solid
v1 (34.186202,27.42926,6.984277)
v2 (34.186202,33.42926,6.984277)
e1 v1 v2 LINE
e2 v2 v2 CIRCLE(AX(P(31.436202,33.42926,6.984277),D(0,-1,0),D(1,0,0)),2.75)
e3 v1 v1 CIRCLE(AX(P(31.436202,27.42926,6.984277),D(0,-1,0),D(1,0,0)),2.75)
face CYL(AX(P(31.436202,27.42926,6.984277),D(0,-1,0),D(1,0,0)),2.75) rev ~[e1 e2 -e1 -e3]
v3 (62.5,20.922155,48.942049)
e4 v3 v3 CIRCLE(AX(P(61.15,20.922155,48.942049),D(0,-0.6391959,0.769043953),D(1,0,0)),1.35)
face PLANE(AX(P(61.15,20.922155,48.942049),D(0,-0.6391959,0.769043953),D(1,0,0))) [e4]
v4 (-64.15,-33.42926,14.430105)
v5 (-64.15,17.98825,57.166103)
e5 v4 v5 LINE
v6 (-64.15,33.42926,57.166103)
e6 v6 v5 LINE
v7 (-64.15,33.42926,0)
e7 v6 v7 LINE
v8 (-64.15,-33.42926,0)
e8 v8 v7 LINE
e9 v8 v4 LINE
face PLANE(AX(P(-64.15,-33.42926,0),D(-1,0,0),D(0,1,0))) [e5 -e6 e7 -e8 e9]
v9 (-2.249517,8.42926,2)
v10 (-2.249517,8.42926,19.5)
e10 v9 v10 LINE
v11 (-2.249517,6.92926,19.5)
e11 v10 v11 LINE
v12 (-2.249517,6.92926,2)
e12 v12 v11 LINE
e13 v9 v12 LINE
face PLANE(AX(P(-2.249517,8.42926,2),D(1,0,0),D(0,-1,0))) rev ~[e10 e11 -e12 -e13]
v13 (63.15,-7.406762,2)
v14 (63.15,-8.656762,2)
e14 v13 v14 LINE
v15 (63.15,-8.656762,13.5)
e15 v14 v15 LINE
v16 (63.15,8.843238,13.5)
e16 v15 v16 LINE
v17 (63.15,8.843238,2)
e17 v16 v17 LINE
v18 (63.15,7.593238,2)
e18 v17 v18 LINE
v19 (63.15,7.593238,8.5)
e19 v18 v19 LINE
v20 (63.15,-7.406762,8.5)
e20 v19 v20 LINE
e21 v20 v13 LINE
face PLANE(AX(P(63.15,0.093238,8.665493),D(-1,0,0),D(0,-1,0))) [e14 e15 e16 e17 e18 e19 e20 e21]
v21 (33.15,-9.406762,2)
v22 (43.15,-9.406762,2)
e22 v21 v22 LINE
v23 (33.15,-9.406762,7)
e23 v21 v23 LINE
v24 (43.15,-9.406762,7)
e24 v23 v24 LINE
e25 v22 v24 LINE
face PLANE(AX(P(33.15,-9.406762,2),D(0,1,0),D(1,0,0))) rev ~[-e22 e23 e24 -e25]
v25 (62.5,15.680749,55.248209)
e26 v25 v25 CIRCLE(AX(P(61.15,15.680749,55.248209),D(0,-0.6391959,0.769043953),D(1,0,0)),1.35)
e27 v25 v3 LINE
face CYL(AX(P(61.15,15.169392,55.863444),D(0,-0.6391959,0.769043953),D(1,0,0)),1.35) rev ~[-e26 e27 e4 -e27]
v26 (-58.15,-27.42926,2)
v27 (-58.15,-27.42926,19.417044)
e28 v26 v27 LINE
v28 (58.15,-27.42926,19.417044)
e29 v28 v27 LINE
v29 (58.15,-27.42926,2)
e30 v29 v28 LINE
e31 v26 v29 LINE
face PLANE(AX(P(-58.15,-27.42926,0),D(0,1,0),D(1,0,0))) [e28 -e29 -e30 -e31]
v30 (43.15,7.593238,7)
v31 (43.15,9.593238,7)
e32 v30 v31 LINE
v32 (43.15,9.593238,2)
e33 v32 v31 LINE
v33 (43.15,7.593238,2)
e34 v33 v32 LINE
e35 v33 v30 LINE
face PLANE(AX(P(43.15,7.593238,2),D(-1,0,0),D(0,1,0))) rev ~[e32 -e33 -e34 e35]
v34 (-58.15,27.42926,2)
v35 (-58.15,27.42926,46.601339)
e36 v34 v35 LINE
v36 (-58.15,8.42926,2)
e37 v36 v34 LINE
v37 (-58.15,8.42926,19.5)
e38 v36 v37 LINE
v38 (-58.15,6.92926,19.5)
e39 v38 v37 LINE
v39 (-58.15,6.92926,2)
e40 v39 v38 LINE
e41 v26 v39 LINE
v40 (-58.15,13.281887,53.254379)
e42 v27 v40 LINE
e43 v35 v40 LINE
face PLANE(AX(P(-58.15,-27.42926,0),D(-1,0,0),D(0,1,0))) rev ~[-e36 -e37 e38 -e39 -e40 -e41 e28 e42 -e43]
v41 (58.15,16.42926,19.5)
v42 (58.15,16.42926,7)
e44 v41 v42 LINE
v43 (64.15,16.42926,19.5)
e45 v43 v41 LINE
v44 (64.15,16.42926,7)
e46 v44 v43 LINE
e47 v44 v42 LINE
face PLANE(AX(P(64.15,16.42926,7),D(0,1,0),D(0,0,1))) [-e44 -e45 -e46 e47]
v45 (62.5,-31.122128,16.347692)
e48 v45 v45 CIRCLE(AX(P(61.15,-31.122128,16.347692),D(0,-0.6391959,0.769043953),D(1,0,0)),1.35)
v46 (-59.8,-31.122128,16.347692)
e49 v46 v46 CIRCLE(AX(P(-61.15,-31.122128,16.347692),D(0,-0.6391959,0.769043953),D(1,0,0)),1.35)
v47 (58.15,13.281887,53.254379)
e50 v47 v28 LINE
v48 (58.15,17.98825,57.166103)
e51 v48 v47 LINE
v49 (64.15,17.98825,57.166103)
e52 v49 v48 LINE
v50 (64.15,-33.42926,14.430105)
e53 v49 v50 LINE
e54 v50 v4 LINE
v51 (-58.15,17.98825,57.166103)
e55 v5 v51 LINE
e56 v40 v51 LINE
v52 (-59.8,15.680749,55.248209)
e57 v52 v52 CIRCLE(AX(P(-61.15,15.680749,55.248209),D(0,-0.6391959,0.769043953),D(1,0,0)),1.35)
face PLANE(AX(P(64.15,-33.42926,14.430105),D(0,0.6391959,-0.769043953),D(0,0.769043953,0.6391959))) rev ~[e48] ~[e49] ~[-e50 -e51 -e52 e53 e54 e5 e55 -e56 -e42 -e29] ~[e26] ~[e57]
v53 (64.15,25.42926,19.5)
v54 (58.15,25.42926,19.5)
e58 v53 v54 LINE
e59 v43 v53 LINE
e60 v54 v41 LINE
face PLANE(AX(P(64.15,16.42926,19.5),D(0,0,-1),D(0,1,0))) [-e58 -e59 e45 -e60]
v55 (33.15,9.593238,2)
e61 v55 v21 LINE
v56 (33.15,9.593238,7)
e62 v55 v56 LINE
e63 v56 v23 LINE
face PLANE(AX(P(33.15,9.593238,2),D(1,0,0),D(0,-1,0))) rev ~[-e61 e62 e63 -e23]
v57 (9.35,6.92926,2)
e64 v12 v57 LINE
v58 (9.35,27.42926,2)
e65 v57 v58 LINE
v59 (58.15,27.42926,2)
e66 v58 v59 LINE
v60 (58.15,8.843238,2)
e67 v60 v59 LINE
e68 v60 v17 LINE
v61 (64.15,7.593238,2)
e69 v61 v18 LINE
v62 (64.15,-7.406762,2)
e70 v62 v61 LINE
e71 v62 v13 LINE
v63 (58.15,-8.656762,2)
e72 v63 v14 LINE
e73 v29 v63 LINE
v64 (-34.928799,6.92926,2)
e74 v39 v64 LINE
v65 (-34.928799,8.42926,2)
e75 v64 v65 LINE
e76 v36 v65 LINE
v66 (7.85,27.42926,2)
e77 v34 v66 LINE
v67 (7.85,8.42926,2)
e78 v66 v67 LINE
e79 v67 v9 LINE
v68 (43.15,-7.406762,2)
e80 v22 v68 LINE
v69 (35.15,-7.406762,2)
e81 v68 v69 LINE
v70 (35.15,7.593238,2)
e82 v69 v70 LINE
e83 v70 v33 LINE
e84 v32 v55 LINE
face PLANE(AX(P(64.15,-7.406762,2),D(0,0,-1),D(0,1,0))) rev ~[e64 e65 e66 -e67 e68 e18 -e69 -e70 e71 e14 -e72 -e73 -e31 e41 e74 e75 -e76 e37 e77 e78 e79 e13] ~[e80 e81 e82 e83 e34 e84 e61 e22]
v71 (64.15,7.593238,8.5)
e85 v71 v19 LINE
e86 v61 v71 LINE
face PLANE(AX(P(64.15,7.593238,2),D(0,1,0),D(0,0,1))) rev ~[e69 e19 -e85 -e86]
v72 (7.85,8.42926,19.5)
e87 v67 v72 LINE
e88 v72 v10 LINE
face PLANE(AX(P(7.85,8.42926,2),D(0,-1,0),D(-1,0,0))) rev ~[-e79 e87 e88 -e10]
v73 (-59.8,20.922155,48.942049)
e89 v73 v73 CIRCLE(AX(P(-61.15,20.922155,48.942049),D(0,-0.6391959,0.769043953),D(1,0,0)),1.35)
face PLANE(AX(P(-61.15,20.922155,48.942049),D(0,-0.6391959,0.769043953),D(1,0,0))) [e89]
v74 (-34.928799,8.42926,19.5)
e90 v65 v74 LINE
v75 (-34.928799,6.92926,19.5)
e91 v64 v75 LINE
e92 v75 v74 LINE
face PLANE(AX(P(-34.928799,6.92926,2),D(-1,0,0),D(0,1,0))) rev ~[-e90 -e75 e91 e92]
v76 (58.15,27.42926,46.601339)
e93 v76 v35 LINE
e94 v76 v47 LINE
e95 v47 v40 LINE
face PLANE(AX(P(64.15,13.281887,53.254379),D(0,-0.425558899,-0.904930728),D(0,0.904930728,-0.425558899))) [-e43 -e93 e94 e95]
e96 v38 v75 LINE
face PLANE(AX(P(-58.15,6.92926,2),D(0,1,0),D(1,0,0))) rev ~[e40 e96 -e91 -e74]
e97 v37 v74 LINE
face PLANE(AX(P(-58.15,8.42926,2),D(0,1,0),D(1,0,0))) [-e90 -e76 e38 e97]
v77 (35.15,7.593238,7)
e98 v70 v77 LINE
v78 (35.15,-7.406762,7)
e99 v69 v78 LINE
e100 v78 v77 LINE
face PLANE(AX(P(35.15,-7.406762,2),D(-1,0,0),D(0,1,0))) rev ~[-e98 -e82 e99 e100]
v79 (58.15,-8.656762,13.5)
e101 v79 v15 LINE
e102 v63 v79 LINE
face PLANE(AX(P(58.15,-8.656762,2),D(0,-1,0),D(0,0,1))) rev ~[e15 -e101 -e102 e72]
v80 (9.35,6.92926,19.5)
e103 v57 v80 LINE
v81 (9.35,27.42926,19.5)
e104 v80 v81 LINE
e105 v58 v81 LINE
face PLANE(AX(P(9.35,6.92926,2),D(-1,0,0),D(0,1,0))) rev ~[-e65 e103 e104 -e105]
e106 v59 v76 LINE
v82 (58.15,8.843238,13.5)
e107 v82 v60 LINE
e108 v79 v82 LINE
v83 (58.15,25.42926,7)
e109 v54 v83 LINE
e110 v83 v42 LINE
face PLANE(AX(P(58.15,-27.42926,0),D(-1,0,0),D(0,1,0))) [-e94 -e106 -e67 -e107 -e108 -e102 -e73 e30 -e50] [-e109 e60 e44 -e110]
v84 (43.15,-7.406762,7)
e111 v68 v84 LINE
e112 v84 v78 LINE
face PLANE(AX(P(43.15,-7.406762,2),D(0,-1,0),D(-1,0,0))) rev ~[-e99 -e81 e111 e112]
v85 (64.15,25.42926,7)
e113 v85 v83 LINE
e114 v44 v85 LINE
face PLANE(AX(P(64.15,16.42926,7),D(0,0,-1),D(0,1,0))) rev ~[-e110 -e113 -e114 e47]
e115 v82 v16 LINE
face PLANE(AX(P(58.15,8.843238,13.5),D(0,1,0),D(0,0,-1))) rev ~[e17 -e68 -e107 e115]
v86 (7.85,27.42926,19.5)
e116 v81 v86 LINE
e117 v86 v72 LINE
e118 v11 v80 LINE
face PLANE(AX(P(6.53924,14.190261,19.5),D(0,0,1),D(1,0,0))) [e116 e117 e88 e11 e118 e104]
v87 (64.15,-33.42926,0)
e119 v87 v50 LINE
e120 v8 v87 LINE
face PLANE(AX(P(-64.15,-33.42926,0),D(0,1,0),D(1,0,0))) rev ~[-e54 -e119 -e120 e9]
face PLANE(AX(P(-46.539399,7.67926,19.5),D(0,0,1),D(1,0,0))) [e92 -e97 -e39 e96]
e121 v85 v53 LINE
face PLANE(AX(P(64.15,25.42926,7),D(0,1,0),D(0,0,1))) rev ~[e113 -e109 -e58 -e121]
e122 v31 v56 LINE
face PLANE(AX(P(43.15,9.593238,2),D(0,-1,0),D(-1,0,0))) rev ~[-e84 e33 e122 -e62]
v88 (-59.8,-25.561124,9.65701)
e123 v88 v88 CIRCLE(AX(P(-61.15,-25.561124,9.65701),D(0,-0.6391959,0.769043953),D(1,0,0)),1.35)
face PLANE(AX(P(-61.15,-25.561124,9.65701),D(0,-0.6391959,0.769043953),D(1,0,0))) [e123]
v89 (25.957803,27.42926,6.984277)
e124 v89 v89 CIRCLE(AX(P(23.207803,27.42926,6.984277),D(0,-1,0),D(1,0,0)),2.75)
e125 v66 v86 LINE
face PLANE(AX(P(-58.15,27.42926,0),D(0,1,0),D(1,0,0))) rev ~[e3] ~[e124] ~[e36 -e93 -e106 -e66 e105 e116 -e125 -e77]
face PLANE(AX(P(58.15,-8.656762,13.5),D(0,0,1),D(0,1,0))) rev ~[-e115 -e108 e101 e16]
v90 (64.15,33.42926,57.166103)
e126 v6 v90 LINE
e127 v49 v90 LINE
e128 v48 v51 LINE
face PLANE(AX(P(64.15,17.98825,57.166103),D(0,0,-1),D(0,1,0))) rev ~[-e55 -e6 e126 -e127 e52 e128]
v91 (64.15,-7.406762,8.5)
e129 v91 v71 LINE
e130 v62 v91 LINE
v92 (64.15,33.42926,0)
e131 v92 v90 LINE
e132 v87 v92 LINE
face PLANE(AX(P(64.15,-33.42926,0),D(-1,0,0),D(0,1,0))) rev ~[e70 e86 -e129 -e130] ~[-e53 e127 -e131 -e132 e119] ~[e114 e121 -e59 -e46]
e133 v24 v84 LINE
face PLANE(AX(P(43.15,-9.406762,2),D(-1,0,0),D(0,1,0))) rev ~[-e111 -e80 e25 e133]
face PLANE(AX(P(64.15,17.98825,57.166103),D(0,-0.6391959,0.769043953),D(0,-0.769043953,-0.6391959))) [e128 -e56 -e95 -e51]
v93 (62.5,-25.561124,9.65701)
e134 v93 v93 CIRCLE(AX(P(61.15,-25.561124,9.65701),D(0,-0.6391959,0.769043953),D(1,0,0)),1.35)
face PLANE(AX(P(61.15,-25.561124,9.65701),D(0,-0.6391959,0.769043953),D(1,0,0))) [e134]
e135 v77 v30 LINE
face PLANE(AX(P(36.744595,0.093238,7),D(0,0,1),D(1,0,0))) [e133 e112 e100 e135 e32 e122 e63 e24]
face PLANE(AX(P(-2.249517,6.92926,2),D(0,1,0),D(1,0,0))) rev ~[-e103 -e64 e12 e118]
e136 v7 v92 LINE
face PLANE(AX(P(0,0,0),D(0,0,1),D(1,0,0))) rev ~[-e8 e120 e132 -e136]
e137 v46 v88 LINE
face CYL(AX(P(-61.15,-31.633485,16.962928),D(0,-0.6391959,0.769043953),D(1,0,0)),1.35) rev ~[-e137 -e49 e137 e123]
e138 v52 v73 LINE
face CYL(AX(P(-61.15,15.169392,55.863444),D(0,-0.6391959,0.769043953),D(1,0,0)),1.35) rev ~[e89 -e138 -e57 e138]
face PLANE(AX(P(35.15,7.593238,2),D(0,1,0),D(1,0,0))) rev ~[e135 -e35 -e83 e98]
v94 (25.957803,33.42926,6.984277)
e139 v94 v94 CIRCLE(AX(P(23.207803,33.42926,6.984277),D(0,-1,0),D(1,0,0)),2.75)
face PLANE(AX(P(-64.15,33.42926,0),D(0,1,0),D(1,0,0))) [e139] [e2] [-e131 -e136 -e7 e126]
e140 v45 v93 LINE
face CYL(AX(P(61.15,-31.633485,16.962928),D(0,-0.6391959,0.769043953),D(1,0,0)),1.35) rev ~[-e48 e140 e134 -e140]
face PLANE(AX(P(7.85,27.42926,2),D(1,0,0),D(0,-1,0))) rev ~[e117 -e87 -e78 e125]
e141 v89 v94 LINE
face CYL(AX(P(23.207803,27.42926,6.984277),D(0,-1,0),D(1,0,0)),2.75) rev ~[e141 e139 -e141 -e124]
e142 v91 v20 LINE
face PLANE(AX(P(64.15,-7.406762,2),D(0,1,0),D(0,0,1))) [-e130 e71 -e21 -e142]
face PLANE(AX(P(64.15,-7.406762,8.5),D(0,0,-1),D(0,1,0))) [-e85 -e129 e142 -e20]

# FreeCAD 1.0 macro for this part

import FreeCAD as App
import Part
import Sketcher
Q = App.Units.Quantity

doc = App.newDocument("Part")
body = doc.addObject("PartDesign::Body", "Body")

# Sketch on XY plane
sketch1 = doc.addObject("Sketcher::SketchObject", "Sketch")
body.addObject(sketch1)
sketch1.AttachmentSupport = (doc.XY_Plane, [""])
sketch1.MapMode = "FlatFace"
sketch1.addGeometry(Part.LineSegment(App.Vector(-64, 33, 0), App.Vector(-64, -33, 0)), False)
sketch1.addGeometry(Part.LineSegment(App.Vector(-64, -33, 0), App.Vector(64, -33, 0)), False)
sketch1.addGeometry(Part.LineSegment(App.Vector(64, -33, 0), App.Vector(64, 33, 0)), False)
sketch1.addGeometry(Part.LineSegment(App.Vector(64, 33, 0), App.Vector(-64, 33, 0)), False)
sketch1.addGeometry(Part.LineSegment(App.Vector(58, -27, 0), App.Vector(-58, -27, 0)), False)
sketch1.addGeometry(Part.LineSegment(App.Vector(-58, -27, 0), App.Vector(-58, 27, 0)), False)
sketch1.addGeometry(Part.LineSegment(App.Vector(-58, 27, 0), App.Vector(58, 27, 0)), False)
sketch1.addGeometry(Part.LineSegment(App.Vector(58, 27, 0), App.Vector(58, -27, 0)), False)
sketch1.addConstraint(Sketcher.Constraint("Coincident", 0, 2, 1, 1))
sketch1.addConstraint(Sketcher.Constraint("Coincident", 1, 2, 2, 1))
sketch1.addConstraint(Sketcher.Constraint("Coincident", 2, 2, 3, 1))
sketch1.addConstraint(Sketcher.Constraint("Coincident", 3, 2, 0, 1))
sketch1.addConstraint(Sketcher.Constraint("Coincident", 4, 2, 5, 1))
sketch1.addConstraint(Sketcher.Constraint("Coincident", 5, 2, 6, 1))
sketch1.addConstraint(Sketcher.Constraint("Coincident", 6, 2, 7, 1))
sketch1.addConstraint(Sketcher.Constraint("Coincident", 7, 2, 4, 1))
sketch1.addConstraint(Sketcher.Constraint("Vertical", 0))
sketch1.addConstraint(Sketcher.Constraint("Horizontal", 1))
sketch1.addConstraint(Sketcher.Constraint("Vertical", 2))
sketch1.addConstraint(Sketcher.Constraint("Horizontal", 3))
sketch1.addConstraint(Sketcher.Constraint("Horizontal", 4))
sketch1.addConstraint(Sketcher.Constraint("Vertical", 5))
sketch1.addConstraint(Sketcher.Constraint("Horizontal", 6))
sketch1.addConstraint(Sketcher.Constraint("Vertical", 7))
sketch1.addConstraint(Sketcher.Constraint("Symmetric", 0, 2, 2, 2, -1, 1))
sketch1.addConstraint(Sketcher.Constraint("Symmetric", 4, 2, 6, 2, -1, 1))
sketch1.addConstraint(Sketcher.Constraint("DistanceX", 1, 1, 1, 2, Q("128.3 mm")))
sketch1.addConstraint(Sketcher.Constraint("DistanceX", 4, 2, 4, 1, Q("116.3 mm")))
sketch1.addConstraint(Sketcher.Constraint("DistanceY", 0, 2, 4, 2, Q("6 mm")))
sketch1.addConstraint(Sketcher.Constraint("DistanceY", 0, 2, 0, 1, Q("66.85852 mm")))
pad1 = doc.addObject("PartDesign::Pad", "Pad")
body.addObject(pad1)
pad1.Profile = sketch1
pad1.Length = 70

# Sketch on XY plane
sketch2 = doc.addObject("Sketcher::SketchObject", "Sketch001")
body.addObject(sketch2)
sketch2.AttachmentSupport = (doc.XY_Plane, [""])
sketch2.MapMode = "FlatFace"
sketch2.addGeometry(Part.LineSegment(App.Vector(-58, 27, 0), App.Vector(-58, -27, 0)), False)
sketch2.addGeometry(Part.LineSegment(App.Vector(-58, -27, 0), App.Vector(58, -27, 0)), False)
sketch2.addGeometry(Part.LineSegment(App.Vector(58, -27, 0), App.Vector(58, 27, 0)), False)
sketch2.addGeometry(Part.LineSegment(App.Vector(58, 27, 0), App.Vector(-58, 27, 0)), False)
sketch2.addConstraint(Sketcher.Constraint("Coincident", 0, 2, 1, 1))
sketch2.addConstraint(Sketcher.Constraint("Coincident", 1, 2, 2, 1))
sketch2.addConstraint(Sketcher.Constraint("Coincident", 2, 2, 3, 1))
sketch2.addConstraint(Sketcher.Constraint("Coincident", 3, 2, 0, 1))
sketch2.addConstraint(Sketcher.Constraint("Vertical", 0))
sketch2.addConstraint(Sketcher.Constraint("Horizontal", 1))
sketch2.addConstraint(Sketcher.Constraint("Vertical", 2))
sketch2.addConstraint(Sketcher.Constraint("Horizontal", 3))
sketch2.addConstraint(Sketcher.Constraint("Symmetric", 0, 2, 2, 2, -1, 1))
sketch2.addConstraint(Sketcher.Constraint("DistanceX", 1, 1, 1, 2, Q("116.3 mm")))
sketch2.addConstraint(Sketcher.Constraint("DistanceY", 0, 2, 0, 1, Q("54.85852 mm")))
pad2 = doc.addObject("PartDesign::Pad", "Pad001")
body.addObject(pad2)
pad2.Profile = sketch2
pad2.Length = 2

# Sketch on YZ plane
sketch3 = doc.addObject("Sketcher::SketchObject", "Sketch002")
body.addObject(sketch3)
sketch3.AttachmentSupport = (doc.YZ_Plane, [""])
sketch3.MapMode = "FlatFace"
sketch3.AttachmentOffset = App.Placement(App.Vector(0, 0, 64.15), App.Rotation())
sketch3.addGeometry(Part.LineSegment(App.Vector(-33, 14, 0), App.Vector(33, 70, 0)), False)
sketch3.addGeometry(Part.LineSegment(App.Vector(33, 70, 0), App.Vector(-33, 70, 0)), False)
sketch3.addGeometry(Part.LineSegment(App.Vector(-33, 70, 0), App.Vector(-33, 14, 0)), False)
sketch3.addConstraint(Sketcher.Constraint("Coincident", 0, 2, 1, 1))
sketch3.addConstraint(Sketcher.Constraint("Coincident", 1, 2, 2, 1))
sketch3.addConstraint(Sketcher.Constraint("Coincident", 2, 2, 0, 1))
sketch3.addConstraint(Sketcher.Constraint("Horizontal", 1))
sketch3.addConstraint(Sketcher.Constraint("Vertical", 2))
sketch3.addConstraint(Sketcher.Constraint("DistanceY", -1, 1, 0, 2, Q("70 mm")))
sketch3.addConstraint(Sketcher.Constraint("DistanceX", 1, 2, 1, 1, Q("66.85852 mm")))
sketch3.addConstraint(Sketcher.Constraint("Distance", 0, Q("86.93719 mm")))
sketch3.addConstraint(Sketcher.Constraint("DistanceX", -1, 1, 0, 2, Q("33.42926 mm")))
pocket1 = doc.addObject("PartDesign::Pocket", "Pocket")
body.addObject(pocket1)
pocket1.Profile = sketch3
pocket1.Length = 130

# Sketch on YZ plane
sketch4 = doc.addObject("Sketcher::SketchObject", "Sketch003")
body.addObject(sketch4)
sketch4.AttachmentSupport = (doc.YZ_Plane, [""])
sketch4.MapMode = "FlatFace"
sketch4.AttachmentOffset = App.Placement(App.Vector(0, 0, 64.15), App.Rotation())
sketch4.addGeometry(Part.LineSegment(App.Vector(16, 20, 0), App.Vector(16, 7, 0)), False)
sketch4.addGeometry(Part.LineSegment(App.Vector(16, 7, 0), App.Vector(25, 7, 0)), False)
sketch4.addGeometry(Part.LineSegment(App.Vector(25, 7, 0), App.Vector(25, 20, 0)), False)
sketch4.addGeometry(Part.LineSegment(App.Vector(25, 20, 0), App.Vector(16, 20, 0)), False)
sketch4.addConstraint(Sketcher.Constraint("Coincident", 0, 2, 1, 1))
sketch4.addConstraint(Sketcher.Constraint("Coincident", 1, 2, 2, 1))
sketch4.addConstraint(Sketcher.Constraint("Coincident", 2, 2, 3, 1))
sketch4.addConstraint(Sketcher.Constraint("Coincident", 3, 2, 0, 1))
sketch4.addConstraint(Sketcher.Constraint("Vertical", 0))
sketch4.addConstraint(Sketcher.Constraint("Horizontal", 1))
sketch4.addConstraint(Sketcher.Constraint("Vertical", 2))
sketch4.addConstraint(Sketcher.Constraint("Horizontal", 3))
sketch4.addConstraint(Sketcher.Constraint("DistanceX", 1, 1, 1, 2, Q("9 mm")))
sketch4.addConstraint(Sketcher.Constraint("DistanceY", 0, 2, 0, 1, Q("12.5 mm")))
sketch4.addConstraint(Sketcher.Constraint("DistanceY", -1, 1, 0, 2, Q("7 mm")))
sketch4.addConstraint(Sketcher.Constraint("DistanceX", -1, 1, 0, 2, Q("16.42926 mm")))
pocket2 = doc.addObject("PartDesign::Pocket", "Pocket001")
body.addObject(pocket2)
pocket2.Profile = sketch4
pocket2.Length = 7

# Sketch on YZ plane
sketch5 = doc.addObject("Sketcher::SketchObject", "Sketch004")
body.addObject(sketch5)
sketch5.AttachmentSupport = (doc.YZ_Plane, [""])
sketch5.MapMode = "FlatFace"
sketch5.AttachmentOffset = App.Placement(App.Vector(0, 0, 64.15), App.Rotation())
sketch5.addGeometry(Part.LineSegment(App.Vector(-7, 8, 0), App.Vector(-7, 2, 0)), False)
sketch5.addGeometry(Part.LineSegment(App.Vector(-7, 2, 0), App.Vector(8, 2, 0)), False)
sketch5.addGeometry(Part.LineSegment(App.Vector(8, 2, 0), App.Vector(8, 8, 0)), False)
sketch5.addGeometry(Part.LineSegment(App.Vector(8, 8, 0), App.Vector(-7, 8, 0)), False)
sketch5.addConstraint(Sketcher.Constraint("Coincident", 0, 2, 1, 1))
sketch5.addConstraint(Sketcher.Constraint("Coincident", 1, 2, 2, 1))
sketch5.addConstraint(Sketcher.Constraint("Coincident", 2, 2, 3, 1))
sketch5.addConstraint(Sketcher.Constraint("Coincident", 3, 2, 0, 1))
sketch5.addConstraint(Sketcher.Constraint("Vertical", 0))
sketch5.addConstraint(Sketcher.Constraint("Horizontal", 1))
sketch5.addConstraint(Sketcher.Constraint("Vertical", 2))
sketch5.addConstraint(Sketcher.Constraint("Horizontal", 3))
sketch5.addConstraint(Sketcher.Constraint("DistanceX", 1, 1, 1, 2, Q("15 mm")))
sketch5.addConstraint(Sketcher.Constraint("DistanceY", 0, 2, 0, 1, Q("6.5 mm")))
sketch5.addConstraint(Sketcher.Constraint("DistanceY", -1, 1, 0, 2, Q("2 mm")))
sketch5.addConstraint(Sketcher.Constraint("DistanceX", 0, 2, -1, 1, Q("7.406762 mm")))
pocket3 = doc.addObject("PartDesign::Pocket", "Pocket002")
body.addObject(pocket3)
pocket3.Profile = sketch5
pocket3.Length = 7

# Sketch on YZ plane
sketch6 = doc.addObject("Sketcher::SketchObject", "Sketch005")
body.addObject(sketch6)
sketch6.AttachmentSupport = (doc.YZ_Plane, [""])
sketch6.MapMode = "FlatFace"
sketch6.AttachmentOffset = App.Placement(App.Vector(0, 0, 58.15), App.Rotation())
sketch6.addGeometry(Part.LineSegment(App.Vector(8.8, 13.5, 0), App.Vector(8.8, 2, 0)), False)
sketch6.addGeometry(Part.LineSegment(App.Vector(8.8, 2, 0), App.Vector(7.6, 2, 0)), False)
sketch6.addGeometry(Part.LineSegment(App.Vector(7.6, 2, 0), App.Vector(7.6, 8.5, 0)), False)
sketch6.addGeometry(Part.LineSegment(App.Vector(7.6, 8.5, 0), App.Vector(-7.4, 8.5, 0)), False)
sketch6.addGeometry(Part.LineSegment(App.Vector(-7.4, 8.5, 0), App.Vector(-7.4, 2, 0)), False)
sketch6.addGeometry(Part.LineSegment(App.Vector(-7.4, 2, 0), App.Vector(-8.7, 2, 0)), False)
sketch6.addGeometry(Part.LineSegment(App.Vector(-8.7, 2, 0), App.Vector(-8.7, 13.5, 0)), False)
sketch6.addGeometry(Part.LineSegment(App.Vector(-8.7, 13.5, 0), App.Vector(8.8, 13.5, 0)), False)
sketch6.addConstraint(Sketcher.Constraint("Coincident", 0, 2, 1, 1))
sketch6.addConstraint(Sketcher.Constraint("Coincident", 1, 2, 2, 1))
sketch6.addConstraint(Sketcher.Constraint("Coincident", 2, 2, 3, 1))
sketch6.addConstraint(Sketcher.Constraint("Coincident", 3, 2, 4, 1))
sketch6.addConstraint(Sketcher.Constraint("Coincident", 4, 2, 5, 1))
sketch6.addConstraint(Sketcher.Constraint("Coincident", 5, 2, 6, 1))
sketch6.addConstraint(Sketcher.Constraint("Coincident", 6, 2, 7, 1))
sketch6.addConstraint(Sketcher.Constraint("Coincident", 7, 2, 0, 1))
sketch6.addConstraint(Sketcher.Constraint("Vertical", 0))
sketch6.addConstraint(Sketcher.Constraint("Horizontal", 1))
sketch6.addConstraint(Sketcher.Constraint("Vertical", 2))
sketch6.addConstraint(Sketcher.Constraint("Horizontal", 3))
sketch6.addConstraint(Sketcher.Constraint("Vertical", 4))
sketch6.addConstraint(Sketcher.Constraint("Horizontal", 5))
sketch6.addConstraint(Sketcher.Constraint("Vertical", 6))
sketch6.addConstraint(Sketcher.Constraint("Horizontal", 7))
sketch6.addConstraint(Sketcher.Constraint("Horizontal", 1, 2, 4, 2))
sketch6.addConstraint(Sketcher.Constraint("Equal", 1, 5))
sketch6.addConstraint(Sketcher.Constraint("DistanceX", 3, 2, 3, 1, Q("15 mm")))
sketch6.addConstraint(Sketcher.Constraint("DistanceX", 7, 1, 7, 2, Q("17.5 mm")))
sketch6.addConstraint(Sketcher.Constraint("DistanceY", 0, 2, 0, 1, Q("11.5 mm")))
sketch6.addConstraint(Sketcher.Constraint("DistanceY", 2, 1, 2, 2, Q("6.5 mm")))
sketch6.addConstraint(Sketcher.Constraint("DistanceY", -1, 1, 0, 2, Q("2 mm")))
sketch6.addConstraint(Sketcher.Constraint("DistanceX", -1, 1, 0, 2, Q("8.843238 mm")))
pocket4 = doc.addObject("PartDesign::Pocket", "Pocket003")
body.addObject(pocket4)
pocket4.Profile = sketch6
pocket4.Length = 5
pocket4.Reversed = True

# Sketch on XY plane
sketch7 = doc.addObject("Sketcher::SketchObject", "Sketch006")
body.addObject(sketch7)
sketch7.AttachmentSupport = (doc.XY_Plane, [""])
sketch7.MapMode = "FlatFace"
sketch7.AttachmentOffset = App.Placement(App.Vector(0, 0, 2), App.Rotation())
sketch7.addGeometry(Part.LineSegment(App.Vector(33.1, 9.6, 0), App.Vector(33.1, -9.4, 0)), False)
sketch7.addGeometry(Part.LineSegment(App.Vector(33.1, -9.4, 0), App.Vector(43.1, -9.4, 0)), False)
sketch7.addGeometry(Part.LineSegment(App.Vector(43.1, -9.4, 0), App.Vector(43.1, -7.4, 0)), False)
sketch7.addGeometry(Part.LineSegment(App.Vector(43.1, -7.4, 0), App.Vector(35.1, -7.4, 0)), False)
sketch7.addGeometry(Part.LineSegment(App.Vector(35.1, -7.4, 0), App.Vector(35.1, 7.6, 0)), False)
sketch7.addGeometry(Part.LineSegment(App.Vector(35.1, 7.6, 0), App.Vector(43.1, 7.6, 0)), False)
sketch7.addGeometry(Part.LineSegment(App.Vector(43.1, 7.6, 0), App.Vector(43.1, 9.6, 0)), False)
sketch7.addGeometry(Part.LineSegment(App.Vector(43.1, 9.6, 0), App.Vector(33.1, 9.6, 0)), False)
sketch7.addConstraint(Sketcher.Constraint("Coincident", 0, 2, 1, 1))
sketch7.addConstraint(Sketcher.Constraint("Coincident", 1, 2, 2, 1))
sketch7.addConstraint(Sketcher.Constraint("Coincident", 2, 2, 3, 1))
sketch7.addConstraint(Sketcher.Constraint("Coincident", 3, 2, 4, 1))
sketch7.addConstraint(Sketcher.Constraint("Coincident", 4, 2, 5, 1))
sketch7.addConstraint(Sketcher.Constraint("Coincident", 5, 2, 6, 1))
sketch7.addConstraint(Sketcher.Constraint("Coincident", 6, 2, 7, 1))
sketch7.addConstraint(Sketcher.Constraint("Coincident", 7, 2, 0, 1))
sketch7.addConstraint(Sketcher.Constraint("Vertical", 0))
sketch7.addConstraint(Sketcher.Constraint("Horizontal", 1))
sketch7.addConstraint(Sketcher.Constraint("Vertical", 2))
sketch7.addConstraint(Sketcher.Constraint("Horizontal", 3))
sketch7.addConstraint(Sketcher.Constraint("Vertical", 4))
sketch7.addConstraint(Sketcher.Constraint("Horizontal", 5))
sketch7.addConstraint(Sketcher.Constraint("Vertical", 6))
sketch7.addConstraint(Sketcher.Constraint("Horizontal", 7))
sketch7.addConstraint(Sketcher.Constraint("Vertical", 2, 2, 5, 2))
sketch7.addConstraint(Sketcher.Constraint("Equal", 2, 6))
sketch7.addConstraint(Sketcher.Constraint("DistanceX", 1, 1, 1, 2, Q("10 mm")))
sketch7.addConstraint(Sketcher.Constraint("DistanceX", 3, 2, 3, 1, Q("8 mm")))
sketch7.addConstraint(Sketcher.Constraint("DistanceY", 0, 2, 0, 1, Q("19 mm")))
sketch7.addConstraint(Sketcher.Constraint("DistanceY", 2, 1, 2, 2, Q("2 mm")))
sketch7.addConstraint(Sketcher.Constraint("DistanceX", -1, 1, 0, 2, Q("33.15 mm")))
sketch7.addConstraint(Sketcher.Constraint("DistanceY", 0, 2, -1, 1, Q("9.406762 mm")))
pad3 = doc.addObject("PartDesign::Pad", "Pad002")
body.addObject(pad3)
pad3.Profile = sketch7
pad3.Length = 5

# Sketch on XY plane
sketch8 = doc.addObject("Sketcher::SketchObject", "Sketch007")
body.addObject(sketch8)
sketch8.AttachmentSupport = (doc.XY_Plane, [""])
sketch8.MapMode = "FlatFace"
sketch8.AttachmentOffset = App.Placement(App.Vector(0, 0, 2), App.Rotation())
sketch8.addGeometry(Part.LineSegment(App.Vector(-58.1, 8.4, 0), App.Vector(-58.1, 6.9, 0)), False)
sketch8.addGeometry(Part.LineSegment(App.Vector(-58.1, 6.9, 0), App.Vector(-34.9, 6.9, 0)), False)
sketch8.addGeometry(Part.LineSegment(App.Vector(-34.9, 6.9, 0), App.Vector(-34.9, 8.4, 0)), False)
sketch8.addGeometry(Part.LineSegment(App.Vector(-34.9, 8.4, 0), App.Vector(-58.1, 8.4, 0)), False)
sketch8.addGeometry(Part.LineSegment(App.Vector(9.3, 27.4, 0), App.Vector(7.8, 27.4, 0)), False)
sketch8.addGeometry(Part.LineSegment(App.Vector(7.8, 27.4, 0), App.Vector(7.8, 8.4, 0)), False)
sketch8.addGeometry(Part.LineSegment(App.Vector(7.8, 8.4, 0), App.Vector(-2.2, 8.4, 0)), False)
sketch8.addGeometry(Part.LineSegment(App.Vector(-2.2, 8.4, 0), App.Vector(-2.2, 6.9, 0)), False)
sketch8.addGeometry(Part.LineSegment(App.Vector(-2.2, 6.9, 0), App.Vector(9.3, 6.9, 0)), False)
sketch8.addGeometry(Part.LineSegment(App.Vector(9.3, 6.9, 0), App.Vector(9.3, 27.4, 0)), False)
sketch8.addConstraint(Sketcher.Constraint("Coincident", 0, 2, 1, 1))
sketch8.addConstraint(Sketcher.Constraint("Coincident", 1, 2, 2, 1))
sketch8.addConstraint(Sketcher.Constraint("Coincident", 2, 2, 3, 1))
sketch8.addConstraint(Sketcher.Constraint("Coincident", 3, 2, 0, 1))
sketch8.addConstraint(Sketcher.Constraint("Coincident", 4, 2, 5, 1))
sketch8.addConstraint(Sketcher.Constraint("Coincident", 5, 2, 6, 1))
sketch8.addConstraint(Sketcher.Constraint("Coincident", 6, 2, 7, 1))
sketch8.addConstraint(Sketcher.Constraint("Coincident", 7, 2, 8, 1))
sketch8.addConstraint(Sketcher.Constraint("Coincident", 8, 2, 9, 1))
sketch8.addConstraint(Sketcher.Constraint("Coincident", 9, 2, 4, 1))
sketch8.addConstraint(Sketcher.Constraint("Vertical", 0))
sketch8.addConstraint(Sketcher.Constraint("Horizontal", 1))
sketch8.addConstraint(Sketcher.Constraint("Vertical", 2))
sketch8.addConstraint(Sketcher.Constraint("Horizontal", 3))
sketch8.addConstraint(Sketcher.Constraint("Horizontal", 4))
sketch8.addConstraint(Sketcher.Constraint("Vertical", 5))
sketch8.addConstraint(Sketcher.Constraint("Horizontal", 6))
sketch8.addConstraint(Sketcher.Constraint("Vertical", 7))
sketch8.addConstraint(Sketcher.Constraint("Horizontal", 8))
sketch8.addConstraint(Sketcher.Constraint("Vertical", 9))
sketch8.addConstraint(Sketcher.Constraint("Horizontal", 3, 2, 5, 2))
sketch8.addConstraint(Sketcher.Constraint("Horizontal", 1, 2, 7, 2))
sketch8.addConstraint(Sketcher.Constraint("Equal", 4, 0))
sketch8.addConstraint(Sketcher.Constraint("DistanceY", 5, 2, 5, 1, Q("19 mm")))
sketch8.addConstraint(Sketcher.Constraint("DistanceX", 4, 2, 4, 1, Q("1.5 mm")))
sketch8.addConstraint(Sketcher.Constraint("DistanceX", 3, 2, 4, 2, Q("66 mm")))
sketch8.addConstraint(Sketcher.Constraint("DistanceX", 0, 2, -1, 1, Q("58.15 mm")))
sketch8.addConstraint(Sketcher.Constraint("DistanceX", 1, 1, 1, 2, Q("23.221201 mm")))
sketch8.addConstraint(Sketcher.Constraint("DistanceX", 6, 2, 6, 1, Q("10.099517 mm")))
sketch8.addConstraint(Sketcher.Constraint("DistanceY", -1, 1, 0, 2, Q("6.92926 mm")))
pad4 = doc.addObject("PartDesign::Pad", "Pad003")
body.addObject(pad4)
pad4.Profile = sketch8
pad4.Length = 17.5

# Sketch on an angled plane
sketch9 = doc.addObject("Sketcher::SketchObject", "Sketch008")
body.addObject(sketch9)
sketch9.Placement = App.Placement(App.Vector(0, -21.262999, 25.582425), App.Rotation(App.Vector(1, 0, 0), App.Vector(0, 0.769043953, 0.6391959), App.Vector(0, -0.6391959, 0.769043953), "ZXY"))
sketch9.addGeometry(Part.Circle(App.Vector(-61.1, -13.5, 0), App.Vector(0, 0, 1), 1.4), False)
sketch9.addGeometry(Part.Circle(App.Vector(61.1, -13.5, 0), App.Vector(0, 0, 1), 1.4), False)
sketch9.addConstraint(Sketcher.Constraint("Equal", 0, 1))
sketch9.addConstraint(Sketcher.Constraint("Symmetric", 0, 3, 1, 3, -2))
sketch9.addConstraint(Sketcher.Constraint("Diameter", 0, Q("2.7 mm")))
sketch9.addConstraint(Sketcher.Constraint("DistanceX", 0, 3, 1, 3, Q("122.3 mm")))
sketch9.addConstraint(Sketcher.Constraint("DistanceY", 0, 3, -1, 1, Q("13.484906 mm")))
pocket5 = doc.addObject("PartDesign::Pocket", "Pocket004")
body.addObject(pocket5)
pocket5.Profile = sketch9
pocket5.Length = 9.5

# Sketch on YZ plane
sketch10 = doc.addObject("Sketcher::SketchObject", "Sketch009")
body.addObject(sketch10)
sketch10.AttachmentSupport = (doc.YZ_Plane, [""])
sketch10.MapMode = "FlatFace"
sketch10.AttachmentOffset = App.Placement(App.Vector(0, 0, 64.15), App.Rotation())
sketch10.addGeometry(Part.LineSegment(App.Vector(92, 57, 0), App.Vector(92, 115, 0)), False)
sketch10.addGeometry(Part.LineSegment(App.Vector(92, 115, 0), App.Vector(-3, 115, 0)), False)
sketch10.addGeometry(Part.LineSegment(App.Vector(-3, 115, 0), App.Vector(-3, 57, 0)), False)
sketch10.addGeometry(Part.LineSegment(App.Vector(-3, 57, 0), App.Vector(18, 57, 0)), False)
sketch10.addGeometry(Part.LineSegment(App.Vector(18, 57, 0), App.Vector(33, 70, 0)), False)
sketch10.addGeometry(Part.LineSegment(App.Vector(33, 70, 0), App.Vector(33, 57, 0)), False)
sketch10.addGeometry(Part.LineSegment(App.Vector(33, 57, 0), App.Vector(92, 57, 0)), False)
sketch10.addConstraint(Sketcher.Constraint("Coincident", 0, 2, 1, 1))
sketch10.addConstraint(Sketcher.Constraint("Coincident", 1, 2, 2, 1))
sketch10.addConstraint(Sketcher.Constraint("Coincident", 2, 2, 3, 1))
sketch10.addConstraint(Sketcher.Constraint("Coincident", 3, 2, 4, 1))
sketch10.addConstraint(Sketcher.Constraint("Coincident", 4, 2, 5, 1))
sketch10.addConstraint(Sketcher.Constraint("Coincident", 5, 2, 6, 1))
sketch10.addConstraint(Sketcher.Constraint("Coincident", 6, 2, 0, 1))
sketch10.addConstraint(Sketcher.Constraint("Vertical", 0))
sketch10.addConstraint(Sketcher.Constraint("Horizontal", 1))
sketch10.addConstraint(Sketcher.Constraint("Vertical", 2))
sketch10.addConstraint(Sketcher.Constraint("Horizontal", 3))
sketch10.addConstraint(Sketcher.Constraint("Vertical", 5))
sketch10.addConstraint(Sketcher.Constraint("Horizontal", 6))
sketch10.addConstraint(Sketcher.Constraint("Horizontal", 3, 2, 5, 2))
sketch10.addConstraint(Sketcher.Constraint("DistanceY", -1, 1, 4, 2, Q("70 mm")))
sketch10.addConstraint(Sketcher.Constraint("DistanceX", 1, 2, 1, 1, Q("95.01804 mm")))
sketch10.addConstraint(Sketcher.Constraint("DistanceX", 3, 1, 3, 2, Q("20.95192 mm")))
sketch10.addConstraint(Sketcher.Constraint("DistanceX", 6, 1, 6, 2, Q("58.62511 mm")))
sketch10.addConstraint(Sketcher.Constraint("Distance", 4, Q("20.07819 mm")))
sketch10.addConstraint(Sketcher.Constraint("DistanceY", 0, 1, 0, 2, Q("58.100203 mm")))
sketch10.addConstraint(Sketcher.Constraint("DistanceX", -1, 1, 0, 2, Q("92.05437 mm")))
pocket6 = doc.addObject("PartDesign::Pocket", "Pocket005")
body.addObject(pocket6)
pocket6.Profile = sketch10
pocket6.Length = 141.4

# Sketch on YZ plane
sketch11 = doc.addObject("Sketcher::SketchObject", "Sketch010")
body.addObject(sketch11)
sketch11.AttachmentSupport = (doc.YZ_Plane, [""])
sketch11.MapMode = "FlatFace"
sketch11.AttachmentOffset = App.Placement(App.Vector(0, 0, 64.15), App.Rotation())
sketch11.addGeometry(Part.LineSegment(App.Vector(18, 57, 0), App.Vector(33, 57, 0)), False)
sketch11.addGeometry(Part.LineSegment(App.Vector(33, 57, 0), App.Vector(33, 70, 0)), False)
sketch11.addGeometry(Part.LineSegment(App.Vector(33, 70, 0), App.Vector(18, 57, 0)), False)
sketch11.addConstraint(Sketcher.Constraint("Coincident", 0, 2, 1, 1))
sketch11.addConstraint(Sketcher.Constraint("Coincident", 1, 2, 2, 1))
sketch11.addConstraint(Sketcher.Constraint("Coincident", 2, 2, 0, 1))
sketch11.addConstraint(Sketcher.Constraint("Horizontal", 0))
sketch11.addConstraint(Sketcher.Constraint("Vertical", 1))
sketch11.addConstraint(Sketcher.Constraint("DistanceY", -1, 1, 1, 2, Q("70 mm")))
sketch11.addConstraint(Sketcher.Constraint("DistanceX", 0, 1, 0, 2, Q("15.44101 mm")))
sketch11.addConstraint(Sketcher.Constraint("Distance", 2, Q("20.07819 mm")))
sketch11.addConstraint(Sketcher.Constraint("DistanceX", -1, 1, 0, 2, Q("33.42926 mm")))
pocket7 = doc.addObject("PartDesign::Pocket", "Pocket006")
body.addObject(pocket7)
pocket7.Profile = sketch11
pocket7.Length = 133.9

# Sketch on YZ plane
sketch12 = doc.addObject("Sketcher::SketchObject", "Sketch011")
body.addObject(sketch12)
sketch12.AttachmentSupport = (doc.YZ_Plane, [""])
sketch12.MapMode = "FlatFace"
sketch12.AttachmentOffset = App.Placement(App.Vector(0, 0, 64.15), App.Rotation())
sketch12.addGeometry(Part.LineSegment(App.Vector(18, 57, 0), App.Vector(13, 53, 0)), False)
sketch12.addGeometry(Part.LineSegment(App.Vector(13, 53, 0), App.Vector(33, 44, 0)), False)
sketch12.addGeometry(Part.LineSegment(App.Vector(33, 44, 0), App.Vector(33, 57, 0)), False)
sketch12.addGeometry(Part.LineSegment(App.Vector(33, 57, 0), App.Vector(18, 57, 0)), False)
sketch12.addConstraint(Sketcher.Constraint("Coincident", 0, 2, 1, 1))
sketch12.addConstraint(Sketcher.Constraint("Coincident", 1, 2, 2, 1))
sketch12.addConstraint(Sketcher.Constraint("Coincident", 2, 2, 3, 1))
sketch12.addConstraint(Sketcher.Constraint("Coincident", 3, 2, 0, 1))
sketch12.addConstraint(Sketcher.Constraint("Vertical", 2))
sketch12.addConstraint(Sketcher.Constraint("Horizontal", 3))
sketch12.addConstraint(Sketcher.Constraint("DistanceX", 3, 2, 3, 1, Q("15.44101 mm")))
sketch12.addConstraint(Sketcher.Constraint("DistanceY", 2, 1, 2, 2, Q("13.386365 mm")))
sketch12.addConstraint(Sketcher.Constraint("DistanceY", -1, 1, 0, 2, Q("53.254379 mm")))
sketch12.addConstraint(Sketcher.Constraint("DistanceX", -1, 1, 1, 2, Q("33.42926 mm")))
sketch12.addConstraint(Sketcher.Constraint("DistanceY", -1, 1, 1, 2, Q("43.779738 mm")))
sketch12.addConstraint(Sketcher.Constraint("Distance", 0, Q("6.119758 mm")))
pad5 = doc.addObject("PartDesign::Pad", "Pad004")
body.addObject(pad5)
pad5.Profile = sketch12
pad5.Length = 128.26
pad5.Reversed = True

# Sketch on an angled plane
sketch13 = doc.addObject("Sketcher::SketchObject", "Sketch012")
body.addObject(sketch13)
sketch13.Placement = App.Placement(App.Vector(0, -21.262999, 25.582425), App.Rotation(App.Vector(1, 0, 0), App.Vector(0, 0.769043953, 0.6391959), App.Vector(0, -0.6391959, 0.769043953), "ZXY"))
sketch13.addGeometry(Part.Circle(App.Vector(61.1, 47.4, 0), App.Vector(0, 0, 1), 1.4), False)
sketch13.addGeometry(Part.Circle(App.Vector(-61.1, 47.4, 0), App.Vector(0, 0, 1), 1.4), False)
sketch13.addConstraint(Sketcher.Constraint("Equal", 0, 1))
sketch13.addConstraint(Sketcher.Constraint("Symmetric", 0, 3, 1, 3, -2))
sketch13.addConstraint(Sketcher.Constraint("Diameter", 0, Q("2.7 mm")))
sketch13.addConstraint(Sketcher.Constraint("DistanceX", 1, 3, 0, 3, Q("122.3 mm")))
sketch13.addConstraint(Sketcher.Constraint("DistanceY", -1, 1, 0, 3, Q("47.373614 mm")))
pocket8 = doc.addObject("PartDesign::Pocket", "Pocket007")
body.addObject(pocket8)
pocket8.Profile = sketch13
pocket8.Length = 9

# Sketch on XZ plane
sketch14 = doc.addObject("Sketcher::SketchObject", "Sketch013")
body.addObject(sketch14)
sketch14.AttachmentSupport = (doc.XZ_Plane, [""])
sketch14.MapMode = "FlatFace"
sketch14.AttachmentOffset = App.Placement(App.Vector(0, 0, -27.42926), App.Rotation())
sketch14.addGeometry(Part.Circle(App.Vector(23.2, 7, 0), App.Vector(0, 0, 1), 2.8), False)
sketch14.addGeometry(Part.Circle(App.Vector(31.4, 7, 0), App.Vector(0, 0, 1), 2.8), False)
sketch14.addConstraint(Sketcher.Constraint("Equal", 0, 1))
sketch14.addConstraint(Sketcher.Constraint("Horizontal", 0, 3, 1, 3))
sketch14.addConstraint(Sketcher.Constraint("Diameter", 0, Q("5.5 mm")))
sketch14.addConstraint(Sketcher.Constraint("DistanceX", 0, 3, 1, 3, Q("8.228399 mm")))
sketch14.addConstraint(Sketcher.Constraint("DistanceX", -1, 1, 0, 3, Q("23.207803 mm")))
sketch14.addConstraint(Sketcher.Constraint("DistanceY", -1, 1, 0, 3, Q("6.984277 mm")))
pocket9 = doc.addObject("PartDesign::Pocket", "Pocket008")
body.addObject(pocket9)
pocket9.Profile = sketch14
pocket9.Length = 25

doc.recompute()
